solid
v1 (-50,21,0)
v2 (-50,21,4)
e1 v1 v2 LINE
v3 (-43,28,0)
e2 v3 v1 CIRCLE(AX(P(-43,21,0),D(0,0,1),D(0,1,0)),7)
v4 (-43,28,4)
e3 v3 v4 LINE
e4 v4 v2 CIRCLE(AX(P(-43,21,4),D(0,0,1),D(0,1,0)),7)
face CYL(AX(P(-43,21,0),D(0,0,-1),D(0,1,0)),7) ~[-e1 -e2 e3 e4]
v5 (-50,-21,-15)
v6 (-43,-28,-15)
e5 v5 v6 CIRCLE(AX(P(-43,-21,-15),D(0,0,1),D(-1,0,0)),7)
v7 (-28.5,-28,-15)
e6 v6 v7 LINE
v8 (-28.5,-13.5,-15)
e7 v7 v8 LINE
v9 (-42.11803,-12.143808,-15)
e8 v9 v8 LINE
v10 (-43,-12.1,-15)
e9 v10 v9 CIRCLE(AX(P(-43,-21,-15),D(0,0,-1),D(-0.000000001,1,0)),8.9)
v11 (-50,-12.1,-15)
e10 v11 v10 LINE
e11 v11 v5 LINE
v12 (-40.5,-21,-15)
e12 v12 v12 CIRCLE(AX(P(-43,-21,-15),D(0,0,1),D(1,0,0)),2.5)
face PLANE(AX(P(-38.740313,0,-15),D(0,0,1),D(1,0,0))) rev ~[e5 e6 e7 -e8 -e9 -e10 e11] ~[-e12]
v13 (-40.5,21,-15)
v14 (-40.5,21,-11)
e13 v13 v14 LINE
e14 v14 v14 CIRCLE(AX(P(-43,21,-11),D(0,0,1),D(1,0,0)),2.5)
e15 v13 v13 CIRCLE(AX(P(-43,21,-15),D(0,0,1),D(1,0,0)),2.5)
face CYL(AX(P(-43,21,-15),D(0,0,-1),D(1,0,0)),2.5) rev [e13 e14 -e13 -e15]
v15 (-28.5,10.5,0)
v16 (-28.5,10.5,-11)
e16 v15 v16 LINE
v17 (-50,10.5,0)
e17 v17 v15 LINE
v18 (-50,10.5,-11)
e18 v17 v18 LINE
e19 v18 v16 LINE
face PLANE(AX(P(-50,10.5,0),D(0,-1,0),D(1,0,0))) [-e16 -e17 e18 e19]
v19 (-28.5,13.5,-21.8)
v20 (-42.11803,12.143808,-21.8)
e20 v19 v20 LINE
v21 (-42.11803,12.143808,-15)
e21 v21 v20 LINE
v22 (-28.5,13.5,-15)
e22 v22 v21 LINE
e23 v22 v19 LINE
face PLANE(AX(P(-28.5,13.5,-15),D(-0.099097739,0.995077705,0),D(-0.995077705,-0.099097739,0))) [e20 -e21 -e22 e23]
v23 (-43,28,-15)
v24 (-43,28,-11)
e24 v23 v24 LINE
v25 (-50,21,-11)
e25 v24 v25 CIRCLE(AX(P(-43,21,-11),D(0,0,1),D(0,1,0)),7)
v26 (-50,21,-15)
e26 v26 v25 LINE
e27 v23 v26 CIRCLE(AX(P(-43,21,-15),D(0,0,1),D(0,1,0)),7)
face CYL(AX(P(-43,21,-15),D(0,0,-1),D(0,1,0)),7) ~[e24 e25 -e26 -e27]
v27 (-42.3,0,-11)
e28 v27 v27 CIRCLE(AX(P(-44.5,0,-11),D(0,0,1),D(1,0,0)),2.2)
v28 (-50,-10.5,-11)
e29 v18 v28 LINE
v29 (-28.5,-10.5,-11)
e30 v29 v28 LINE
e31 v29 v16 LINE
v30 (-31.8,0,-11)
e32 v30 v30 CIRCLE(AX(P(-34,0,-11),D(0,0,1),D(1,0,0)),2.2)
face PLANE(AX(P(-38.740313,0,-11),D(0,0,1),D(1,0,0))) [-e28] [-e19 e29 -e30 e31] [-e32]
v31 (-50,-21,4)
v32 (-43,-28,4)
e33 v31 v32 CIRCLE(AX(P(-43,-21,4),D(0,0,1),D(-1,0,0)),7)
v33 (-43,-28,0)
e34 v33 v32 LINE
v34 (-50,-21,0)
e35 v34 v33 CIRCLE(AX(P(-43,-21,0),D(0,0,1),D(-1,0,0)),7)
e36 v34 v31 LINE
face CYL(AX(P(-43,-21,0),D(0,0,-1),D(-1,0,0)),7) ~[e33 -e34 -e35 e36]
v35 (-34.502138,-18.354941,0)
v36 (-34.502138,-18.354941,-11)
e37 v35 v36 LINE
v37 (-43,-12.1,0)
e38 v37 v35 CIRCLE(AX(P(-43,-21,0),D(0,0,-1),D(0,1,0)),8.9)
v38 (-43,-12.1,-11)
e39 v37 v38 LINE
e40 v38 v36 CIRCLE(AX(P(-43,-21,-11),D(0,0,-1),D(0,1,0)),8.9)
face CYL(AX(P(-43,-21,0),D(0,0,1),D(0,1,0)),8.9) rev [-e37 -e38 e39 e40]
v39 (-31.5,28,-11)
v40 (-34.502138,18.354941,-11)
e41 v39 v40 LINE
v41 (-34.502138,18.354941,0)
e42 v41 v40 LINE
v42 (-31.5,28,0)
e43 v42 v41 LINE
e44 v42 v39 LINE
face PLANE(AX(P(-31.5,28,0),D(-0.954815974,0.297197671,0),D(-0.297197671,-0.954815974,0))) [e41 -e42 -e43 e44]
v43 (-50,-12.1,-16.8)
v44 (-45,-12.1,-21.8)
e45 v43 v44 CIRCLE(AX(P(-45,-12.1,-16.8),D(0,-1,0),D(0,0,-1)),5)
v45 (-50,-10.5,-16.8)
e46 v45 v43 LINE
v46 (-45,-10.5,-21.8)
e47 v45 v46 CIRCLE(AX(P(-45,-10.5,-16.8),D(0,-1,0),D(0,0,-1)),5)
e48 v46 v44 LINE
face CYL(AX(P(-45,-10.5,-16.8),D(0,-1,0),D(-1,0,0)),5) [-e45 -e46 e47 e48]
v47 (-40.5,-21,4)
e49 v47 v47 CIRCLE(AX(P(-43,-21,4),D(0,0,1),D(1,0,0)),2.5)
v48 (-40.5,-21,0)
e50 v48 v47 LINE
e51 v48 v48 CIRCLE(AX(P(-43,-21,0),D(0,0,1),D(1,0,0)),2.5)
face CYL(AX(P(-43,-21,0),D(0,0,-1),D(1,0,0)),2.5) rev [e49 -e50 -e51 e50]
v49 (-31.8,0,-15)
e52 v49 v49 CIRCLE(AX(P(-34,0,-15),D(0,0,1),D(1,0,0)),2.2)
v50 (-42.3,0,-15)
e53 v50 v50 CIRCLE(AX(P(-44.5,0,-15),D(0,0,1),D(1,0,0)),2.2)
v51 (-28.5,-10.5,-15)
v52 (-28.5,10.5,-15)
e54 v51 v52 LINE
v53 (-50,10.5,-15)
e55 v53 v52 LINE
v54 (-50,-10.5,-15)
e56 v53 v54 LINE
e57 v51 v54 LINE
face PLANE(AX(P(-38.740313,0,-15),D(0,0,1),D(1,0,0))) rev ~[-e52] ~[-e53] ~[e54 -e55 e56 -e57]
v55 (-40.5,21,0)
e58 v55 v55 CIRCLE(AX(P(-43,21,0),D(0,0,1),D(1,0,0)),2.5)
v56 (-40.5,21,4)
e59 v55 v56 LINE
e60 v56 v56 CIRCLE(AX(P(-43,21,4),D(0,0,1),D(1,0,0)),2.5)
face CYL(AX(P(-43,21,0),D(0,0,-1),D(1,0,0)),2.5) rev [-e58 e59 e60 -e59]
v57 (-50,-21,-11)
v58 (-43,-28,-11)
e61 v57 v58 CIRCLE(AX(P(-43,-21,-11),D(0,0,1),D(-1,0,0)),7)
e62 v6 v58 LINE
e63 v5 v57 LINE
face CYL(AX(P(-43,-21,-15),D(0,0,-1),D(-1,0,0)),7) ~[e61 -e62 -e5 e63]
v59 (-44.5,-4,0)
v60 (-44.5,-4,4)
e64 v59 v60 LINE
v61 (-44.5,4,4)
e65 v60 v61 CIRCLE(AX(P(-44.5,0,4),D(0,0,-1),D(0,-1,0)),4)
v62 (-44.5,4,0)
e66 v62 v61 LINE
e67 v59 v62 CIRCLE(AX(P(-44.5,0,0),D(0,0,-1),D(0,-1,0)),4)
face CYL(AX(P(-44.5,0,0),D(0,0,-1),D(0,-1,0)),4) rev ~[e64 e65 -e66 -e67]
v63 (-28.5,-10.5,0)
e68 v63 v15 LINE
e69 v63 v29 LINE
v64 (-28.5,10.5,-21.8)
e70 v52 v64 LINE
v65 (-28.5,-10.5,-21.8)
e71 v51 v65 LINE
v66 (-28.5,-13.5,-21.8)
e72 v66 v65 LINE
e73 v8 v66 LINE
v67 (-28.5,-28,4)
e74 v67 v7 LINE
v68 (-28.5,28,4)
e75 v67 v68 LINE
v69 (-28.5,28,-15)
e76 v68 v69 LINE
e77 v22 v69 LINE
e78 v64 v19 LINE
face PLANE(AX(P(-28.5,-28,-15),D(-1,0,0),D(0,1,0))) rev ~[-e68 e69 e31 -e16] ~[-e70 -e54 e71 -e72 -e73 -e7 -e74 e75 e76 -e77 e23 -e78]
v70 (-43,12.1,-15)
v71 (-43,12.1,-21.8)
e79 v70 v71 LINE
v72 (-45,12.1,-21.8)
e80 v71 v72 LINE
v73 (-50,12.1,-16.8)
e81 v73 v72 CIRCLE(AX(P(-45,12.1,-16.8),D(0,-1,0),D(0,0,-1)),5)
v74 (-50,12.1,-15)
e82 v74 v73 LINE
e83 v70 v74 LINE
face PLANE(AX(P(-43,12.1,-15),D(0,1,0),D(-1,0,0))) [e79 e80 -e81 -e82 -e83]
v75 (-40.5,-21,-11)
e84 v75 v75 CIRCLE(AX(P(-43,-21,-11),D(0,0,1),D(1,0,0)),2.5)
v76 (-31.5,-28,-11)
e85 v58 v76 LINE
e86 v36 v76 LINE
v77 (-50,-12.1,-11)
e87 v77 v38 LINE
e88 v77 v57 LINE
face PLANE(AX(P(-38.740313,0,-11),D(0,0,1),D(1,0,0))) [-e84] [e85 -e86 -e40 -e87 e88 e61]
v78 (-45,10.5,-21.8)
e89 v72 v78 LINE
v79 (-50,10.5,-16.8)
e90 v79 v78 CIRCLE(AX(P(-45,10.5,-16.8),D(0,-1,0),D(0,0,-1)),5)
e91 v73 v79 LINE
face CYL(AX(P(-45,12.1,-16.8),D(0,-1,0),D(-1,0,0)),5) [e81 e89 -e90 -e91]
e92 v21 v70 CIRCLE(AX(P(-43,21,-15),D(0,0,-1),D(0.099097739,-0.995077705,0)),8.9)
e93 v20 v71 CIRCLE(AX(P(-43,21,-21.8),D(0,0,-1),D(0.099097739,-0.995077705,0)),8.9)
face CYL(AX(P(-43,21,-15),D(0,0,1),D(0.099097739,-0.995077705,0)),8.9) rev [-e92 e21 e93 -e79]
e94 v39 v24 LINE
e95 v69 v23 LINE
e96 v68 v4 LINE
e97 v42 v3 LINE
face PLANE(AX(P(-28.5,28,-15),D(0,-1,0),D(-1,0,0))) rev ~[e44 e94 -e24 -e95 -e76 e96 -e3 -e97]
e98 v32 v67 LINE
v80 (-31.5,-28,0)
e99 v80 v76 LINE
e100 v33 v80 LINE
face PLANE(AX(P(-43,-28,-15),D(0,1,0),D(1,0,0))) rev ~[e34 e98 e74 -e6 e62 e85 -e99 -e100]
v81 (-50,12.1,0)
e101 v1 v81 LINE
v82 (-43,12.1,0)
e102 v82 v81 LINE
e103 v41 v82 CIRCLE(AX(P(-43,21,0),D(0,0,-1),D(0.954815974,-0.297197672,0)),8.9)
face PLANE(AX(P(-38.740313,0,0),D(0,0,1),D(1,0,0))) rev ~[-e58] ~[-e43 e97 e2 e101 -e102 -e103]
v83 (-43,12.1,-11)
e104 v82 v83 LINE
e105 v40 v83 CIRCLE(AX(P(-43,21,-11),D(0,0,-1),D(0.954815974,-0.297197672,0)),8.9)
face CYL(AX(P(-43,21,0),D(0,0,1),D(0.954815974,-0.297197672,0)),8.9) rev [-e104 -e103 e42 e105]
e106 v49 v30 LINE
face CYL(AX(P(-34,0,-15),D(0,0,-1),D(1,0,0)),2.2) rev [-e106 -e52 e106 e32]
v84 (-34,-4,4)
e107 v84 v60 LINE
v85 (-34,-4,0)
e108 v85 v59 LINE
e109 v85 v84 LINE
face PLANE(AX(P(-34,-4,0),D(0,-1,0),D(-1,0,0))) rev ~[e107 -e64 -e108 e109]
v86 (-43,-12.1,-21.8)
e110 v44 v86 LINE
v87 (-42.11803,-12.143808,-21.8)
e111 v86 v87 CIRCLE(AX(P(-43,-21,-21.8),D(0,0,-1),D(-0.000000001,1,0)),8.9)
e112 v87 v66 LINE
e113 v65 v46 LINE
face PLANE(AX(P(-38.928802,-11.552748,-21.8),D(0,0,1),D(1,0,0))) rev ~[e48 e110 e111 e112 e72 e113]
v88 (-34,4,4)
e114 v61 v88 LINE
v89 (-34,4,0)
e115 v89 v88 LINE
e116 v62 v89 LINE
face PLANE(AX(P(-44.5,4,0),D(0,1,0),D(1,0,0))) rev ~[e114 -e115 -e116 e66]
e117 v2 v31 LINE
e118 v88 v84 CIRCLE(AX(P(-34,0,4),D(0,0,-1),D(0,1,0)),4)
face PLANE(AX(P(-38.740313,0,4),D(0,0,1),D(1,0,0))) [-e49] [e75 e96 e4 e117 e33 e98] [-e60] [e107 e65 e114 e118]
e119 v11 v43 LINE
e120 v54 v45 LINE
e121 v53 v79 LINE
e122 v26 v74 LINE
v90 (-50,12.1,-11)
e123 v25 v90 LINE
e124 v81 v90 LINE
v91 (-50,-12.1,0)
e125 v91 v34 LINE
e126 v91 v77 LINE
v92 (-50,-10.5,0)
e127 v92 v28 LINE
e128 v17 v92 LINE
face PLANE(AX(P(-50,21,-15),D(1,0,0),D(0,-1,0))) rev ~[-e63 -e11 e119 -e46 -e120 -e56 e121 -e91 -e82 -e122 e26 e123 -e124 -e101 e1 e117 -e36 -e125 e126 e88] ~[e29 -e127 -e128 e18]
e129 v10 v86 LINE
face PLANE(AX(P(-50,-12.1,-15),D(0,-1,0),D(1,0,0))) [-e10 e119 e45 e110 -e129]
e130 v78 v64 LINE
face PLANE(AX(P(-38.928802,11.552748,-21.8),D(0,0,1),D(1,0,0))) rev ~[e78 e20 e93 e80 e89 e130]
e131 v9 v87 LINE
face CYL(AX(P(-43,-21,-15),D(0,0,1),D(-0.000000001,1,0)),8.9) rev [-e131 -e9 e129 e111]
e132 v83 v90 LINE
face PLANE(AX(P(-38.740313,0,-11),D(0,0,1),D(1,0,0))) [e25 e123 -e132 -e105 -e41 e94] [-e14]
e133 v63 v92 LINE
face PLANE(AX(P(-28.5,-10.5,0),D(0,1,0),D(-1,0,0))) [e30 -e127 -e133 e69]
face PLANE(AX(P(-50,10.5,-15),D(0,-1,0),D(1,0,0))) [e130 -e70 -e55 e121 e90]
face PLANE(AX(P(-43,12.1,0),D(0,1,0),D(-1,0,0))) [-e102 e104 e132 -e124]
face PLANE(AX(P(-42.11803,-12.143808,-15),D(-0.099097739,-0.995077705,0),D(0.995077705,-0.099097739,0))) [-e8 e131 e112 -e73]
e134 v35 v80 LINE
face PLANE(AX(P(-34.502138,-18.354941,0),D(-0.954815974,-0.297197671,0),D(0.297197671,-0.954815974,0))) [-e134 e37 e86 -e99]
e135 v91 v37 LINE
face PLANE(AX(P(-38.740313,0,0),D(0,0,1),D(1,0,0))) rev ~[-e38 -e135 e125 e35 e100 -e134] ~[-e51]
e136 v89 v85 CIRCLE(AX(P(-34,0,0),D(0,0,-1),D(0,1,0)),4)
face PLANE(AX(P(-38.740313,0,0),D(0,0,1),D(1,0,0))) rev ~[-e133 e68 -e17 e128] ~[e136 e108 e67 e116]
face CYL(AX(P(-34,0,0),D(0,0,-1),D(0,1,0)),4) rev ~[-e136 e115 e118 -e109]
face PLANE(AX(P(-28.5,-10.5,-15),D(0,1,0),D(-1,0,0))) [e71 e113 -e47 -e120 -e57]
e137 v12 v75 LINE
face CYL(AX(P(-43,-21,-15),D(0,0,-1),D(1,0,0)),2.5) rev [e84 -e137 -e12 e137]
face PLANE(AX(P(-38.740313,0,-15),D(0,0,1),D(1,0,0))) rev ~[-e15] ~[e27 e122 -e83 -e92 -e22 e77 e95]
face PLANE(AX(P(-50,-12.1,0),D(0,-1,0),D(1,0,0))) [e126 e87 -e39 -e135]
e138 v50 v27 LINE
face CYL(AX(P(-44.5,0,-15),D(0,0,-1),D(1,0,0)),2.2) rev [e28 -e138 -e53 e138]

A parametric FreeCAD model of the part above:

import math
import FreeCAD as App
import Part
import Sketcher
from FreeCAD import Vector


def edges_at(feature, points):
    """Names of the edges that pass closest to the given points."""
    edges = feature.Shape.Edges
    near = lambda p: min(range(len(edges)), key=lambda i: edges[i].distToShape(Part.Vertex(*p))[0])
    return sorted({f"Edge{near(p) + 1}" for p in points})

doc = App.newDocument("Part")
body = doc.addObject("PartDesign::Body", "Body")

# Sketch on XY plane
sketch1 = body.newObject("Sketcher::SketchObject", "Sketch")
sketch1.AttachmentSupport = (doc.getObject("XY_Plane"), [""])
sketch1.MapMode = "FlatFace"
sketch1.addGeometry([
    Part.ArcOfCircle(Part.Circle(Vector(-43, 21, 0), Vector(0, 0, 1), 7), math.radians(90), math.radians(180)),  # 0
    Part.LineSegment(Vector(-50, 21, 0), Vector(-50, -21, 0)),  # 1
    Part.ArcOfCircle(Part.Circle(Vector(-43, -21, 0), Vector(0, 0, 1), 7), math.radians(-180), math.radians(-90)),  # 2
    Part.LineSegment(Vector(-43, -28, 0), Vector(-28.5, -28, 0)),  # 3
    Part.LineSegment(Vector(-28.5, -28, 0), Vector(-28.5, 28, 0)),  # 4
    Part.LineSegment(Vector(-28.5, 28, 0), Vector(-43, 28, 0)),  # 5
    Part.Circle(Vector(-43, -21, 0), Vector(0, 0, 1), 2.5),  # 6
    Part.Circle(Vector(-43, 21, 0), Vector(0, 0, 1), 2.5),  # 7
    Part.ArcOfCircle(Part.Circle(Vector(-44.5, 0, 0), Vector(0, 0, 1), 4), math.radians(90), math.radians(270)),  # 8
    Part.LineSegment(Vector(-44.5, 4, 0), Vector(-34, 4, 0)),  # 9
    Part.ArcOfCircle(Part.Circle(Vector(-34, 0, 0), Vector(0, 0, 1), 4), math.radians(-90), math.radians(90)),  # 10
    Part.LineSegment(Vector(-34, -4, 0), Vector(-44.5, -4, 0)),  # 11
], False)
sketch1.addConstraint([
    Sketcher.Constraint("Tangent", 0, 2, 1, 1),
    Sketcher.Constraint("Tangent", 1, 2, 2, 1),
    Sketcher.Constraint("Tangent", 2, 2, 3, 1),
    Sketcher.Constraint("Coincident", 3, 2, 4, 1),
    Sketcher.Constraint("Coincident", 4, 2, 5, 1),
    Sketcher.Constraint("Tangent", 5, 2, 0, 1),
    Sketcher.Constraint("Tangent", 8, 1, 9, 1),
    Sketcher.Constraint("Tangent", 9, 2, 10, 2),
    Sketcher.Constraint("Tangent", 10, 1, 11, 1),
    Sketcher.Constraint("Tangent", 11, 2, 8, 2),
    Sketcher.Constraint("Vertical", 1),
    Sketcher.Constraint("Horizontal", 3),
    Sketcher.Constraint("Vertical", 4),
    Sketcher.Constraint("Horizontal", 5),
    Sketcher.Constraint("Horizontal", 9),
    Sketcher.Constraint("Horizontal", 11),
    Sketcher.Constraint("Coincident", 6, 3, 2, 3),
    Sketcher.Constraint("Coincident", 7, 3, 0, 3),
    Sketcher.Constraint("Equal", 0, 2),
    Sketcher.Constraint("Equal", 6, 7),
    Sketcher.Constraint("PointOnObject", 8, 3, -1),
    Sketcher.Constraint("Diameter", 6, 5.0),
    Sketcher.Constraint("Radius", 0, 7.0),
    Sketcher.Constraint("Radius", 8, 4.0),
    Sketcher.Constraint("DistanceY", 1, 2, 1, 1, 42.0),
    Sketcher.Constraint("DistanceX", 3, 1, 3, 2, 14.5),
    Sketcher.Constraint("DistanceX", 9, 1, 9, 2, 10.5),
    Sketcher.Constraint("DistanceX", 0, 3, -1, 1, 43.0),
    Sketcher.Constraint("DistanceY", -1, 1, 0, 3, 21.0),
    Sketcher.Constraint("DistanceX", 10, 3, -1, 1, 34.0),
])
pad1 = body.newObject("PartDesign::Pad", "Pad")
pad1.Profile = sketch1
pad1.Length = 4

# Sketch on XY plane
sketch2 = body.newObject("Sketcher::SketchObject", "Sketch001")
sketch2.AttachmentSupport = (doc.getObject("XY_Plane"), [""])
sketch2.MapMode = "FlatFace"
sketch2.addGeometry([
    Part.LineSegment(Vector(-43, 12.1, 0), Vector(-50, 12.1, 0)),  # 0
    Part.LineSegment(Vector(-50, 12.1, 0), Vector(-50, 10.5, 0)),  # 1
    Part.LineSegment(Vector(-50, 10.5, 0), Vector(-28.5, 10.5, 0)),  # 2
    Part.LineSegment(Vector(-28.5, 10.5, 0), Vector(-28.5, 28, 0)),  # 3
    Part.LineSegment(Vector(-28.5, 28, 0), Vector(-31.5, 28, 0)),  # 4
    Part.LineSegment(Vector(-31.5, 28, 0), Vector(-34.5, 18.4, 0)),  # 5
    Part.ArcOfCircle(Part.Circle(Vector(-43, 21, 0), Vector(0, 0, 1), 8.9), math.radians(-90), math.radians(-17)),  # 6
    Part.LineSegment(Vector(-28.5, -10.5, 0), Vector(-50, -10.5, 0)),  # 7
    Part.LineSegment(Vector(-50, -10.5, 0), Vector(-50, -12.1, 0)),  # 8
    Part.LineSegment(Vector(-50, -12.1, 0), Vector(-43, -12.1, 0)),  # 9
    Part.ArcOfCircle(Part.Circle(Vector(-43, -21, 0), Vector(0, 0, 1), 8.9), math.radians(17), math.radians(90)),  # 10
    Part.LineSegment(Vector(-34.5, -18.4, 0), Vector(-31.5, -28, 0)),  # 11
    Part.LineSegment(Vector(-31.5, -28, 0), Vector(-28.5, -28, 0)),  # 12
    Part.LineSegment(Vector(-28.5, -28, 0), Vector(-28.5, -10.5, 0)),  # 13
], False)
sketch2.addConstraint([
    Sketcher.Constraint("Coincident", 0, 2, 1, 1),
    Sketcher.Constraint("Coincident", 1, 2, 2, 1),
    Sketcher.Constraint("Coincident", 2, 2, 3, 1),
    Sketcher.Constraint("Coincident", 3, 2, 4, 1),
    Sketcher.Constraint("Coincident", 4, 2, 5, 1),
    Sketcher.Constraint("Tangent", 5, 2, 6, 2),
    Sketcher.Constraint("Tangent", 6, 1, 0, 1),
    Sketcher.Constraint("Coincident", 7, 2, 8, 1),
    Sketcher.Constraint("Coincident", 8, 2, 9, 1),
    Sketcher.Constraint("Tangent", 9, 2, 10, 2),
    Sketcher.Constraint("Tangent", 10, 1, 11, 1),
    Sketcher.Constraint("Coincident", 11, 2, 12, 1),
    Sketcher.Constraint("Coincident", 12, 2, 13, 1),
    Sketcher.Constraint("Coincident", 13, 2, 7, 1),
    Sketcher.Constraint("Horizontal", 0),
    Sketcher.Constraint("Vertical", 1),
    Sketcher.Constraint("Horizontal", 2),
    Sketcher.Constraint("Vertical", 3),
    Sketcher.Constraint("Horizontal", 4),
    Sketcher.Constraint("Horizontal", 7),
    Sketcher.Constraint("Vertical", 8),
    Sketcher.Constraint("Horizontal", 9),
    Sketcher.Constraint("Horizontal", 12),
    Sketcher.Constraint("Vertical", 13),
    Sketcher.Constraint("Equal", 6, 10),
    Sketcher.Constraint("Symmetric", 6, 3, 10, 3, -1),
    Sketcher.Constraint("Symmetric", 1, 2, 7, 2, -1),
    Sketcher.Constraint("Symmetric", 4, 2, 11, 2, -1),
    Sketcher.Constraint("Vertical", 3, 2, 12, 2),
    Sketcher.Constraint("Radius", 6, 8.9),
    Sketcher.Constraint("DistanceX", 0, 2, 0, 1, 7.0),
    Sketcher.Constraint("DistanceX", 4, 2, 4, 1, 3.0),
    Sketcher.Constraint("DistanceX", 2, 1, 2, 2, 21.5),
    Sketcher.Constraint("DistanceY", 1, 2, 1, 1, 1.6),
    Sketcher.Constraint("DistanceY", 3, 1, 3, 2, 17.5),
    Sketcher.Constraint("DistanceX", 6, 3, -1, 1, 43.0),
    Sketcher.Constraint("DistanceY", -1, 1, 6, 3, 21.0),
])
pad2 = body.newObject("PartDesign::Pad", "Pad001")
pad2.Profile = sketch2
pad2.Length = 11
pad2.Reversed = True

# Sketch on XY plane
sketch3 = body.newObject("Sketcher::SketchObject", "Sketch002")
sketch3.AttachmentSupport = (doc.getObject("XY_Plane"), [""])
sketch3.MapMode = "FlatFace"
sketch3.AttachmentOffset = App.Placement(Vector(0, 0, -15), App.Rotation())
sketch3.addGeometry([
    Part.ArcOfCircle(Part.Circle(Vector(-43, 21, 0), Vector(0, 0, 1), 7), math.radians(90), math.radians(180)),  # 0
    Part.LineSegment(Vector(-50, 21, 0), Vector(-50, -21, 0)),  # 1
    Part.ArcOfCircle(Part.Circle(Vector(-43, -21, 0), Vector(0, 0, 1), 7), math.radians(-180), math.radians(-90)),  # 2
    Part.LineSegment(Vector(-43, -28, 0), Vector(-28.5, -28, 0)),  # 3
    Part.LineSegment(Vector(-28.5, -28, 0), Vector(-28.5, 28, 0)),  # 4
    Part.LineSegment(Vector(-28.5, 28, 0), Vector(-43, 28, 0)),  # 5
    Part.Circle(Vector(-43, -21, 0), Vector(0, 0, 1), 2.5),  # 6
    Part.Circle(Vector(-44.5, 0, 0), Vector(0, 0, 1), 2.2),  # 7
    Part.Circle(Vector(-43, 21, 0), Vector(0, 0, 1), 2.5),  # 8
    Part.Circle(Vector(-34, 0, 0), Vector(0, 0, 1), 2.2),  # 9
], False)
sketch3.addConstraint([
    Sketcher.Constraint("Tangent", 0, 2, 1, 1),
    Sketcher.Constraint("Tangent", 1, 2, 2, 1),
    Sketcher.Constraint("Tangent", 2, 2, 3, 1),
    Sketcher.Constraint("Coincident", 3, 2, 4, 1),
    Sketcher.Constraint("Coincident", 4, 2, 5, 1),
    Sketcher.Constraint("Tangent", 5, 2, 0, 1),
    Sketcher.Constraint("Vertical", 1),
    Sketcher.Constraint("Horizontal", 3),
    Sketcher.Constraint("Vertical", 4),
    Sketcher.Constraint("Horizontal", 5),
    Sketcher.Constraint("Coincident", 6, 3, 2, 3),
    Sketcher.Constraint("Coincident", 8, 3, 0, 3),
    Sketcher.Constraint("Equal", 0, 2),
    Sketcher.Constraint("Equal", 6, 8),
    Sketcher.Constraint("Equal", 7, 9),
    Sketcher.Constraint("PointOnObject", 7, 3, -1),
    Sketcher.Constraint("PointOnObject", 9, 3, -1),
    Sketcher.Constraint("Diameter", 6, 5.0),
    Sketcher.Constraint("Radius", 0, 7.0),
    Sketcher.Constraint("Diameter", 7, 4.4),
    Sketcher.Constraint("DistanceY", 1, 2, 1, 1, 42.0),
    Sketcher.Constraint("DistanceX", 3, 1, 3, 2, 14.5),
    Sketcher.Constraint("DistanceX", 0, 3, -1, 1, 43.0),
    Sketcher.Constraint("DistanceY", -1, 1, 0, 3, 21.0),
    Sketcher.Constraint("DistanceX", 9, 3, -1, 1, 34.0),
    Sketcher.Constraint("DistanceX", 7, 3, 4, 2, 16.0),
])
pad3 = body.newObject("PartDesign::Pad", "Pad002")
pad3.Profile = sketch3
pad3.Length = 4

# Sketch on XY plane
sketch4 = body.newObject("Sketcher::SketchObject", "Sketch003")
sketch4.AttachmentSupport = (doc.getObject("XY_Plane"), [""])
sketch4.MapMode = "FlatFace"
sketch4.AttachmentOffset = App.Placement(Vector(0, 0, -15), App.Rotation())
sketch4.addGeometry([
    Part.LineSegment(Vector(-43, 12.1, 0), Vector(-50, 12.1, 0)),  # 0
    Part.LineSegment(Vector(-50, 12.1, 0), Vector(-50, 10.5, 0)),  # 1
    Part.LineSegment(Vector(-50, 10.5, 0), Vector(-28.5, 10.5, 0)),  # 2
    Part.LineSegment(Vector(-28.5, 10.5, 0), Vector(-28.5, 13.5, 0)),  # 3
    Part.LineSegment(Vector(-28.5, 13.5, 0), Vector(-42.1, 12.1, 0)),  # 4
    Part.ArcOfCircle(Part.Circle(Vector(-43, 21, 0), Vector(0, 0, 1), 8.9), math.radians(-90), math.radians(-84.31)),  # 5
    Part.LineSegment(Vector(-28.5, -10.5, 0), Vector(-50, -10.5, 0)),  # 6
    Part.LineSegment(Vector(-50, -10.5, 0), Vector(-50, -12.1, 0)),  # 7
    Part.LineSegment(Vector(-50, -12.1, 0), Vector(-43, -12.1, 0)),  # 8
    Part.ArcOfCircle(Part.Circle(Vector(-43, -21, 0), Vector(0, 0, 1), 8.9), math.radians(84.31), math.radians(90)),  # 9
    Part.LineSegment(Vector(-42.1, -12.1, 0), Vector(-28.5, -13.5, 0)),  # 10
    Part.LineSegment(Vector(-28.5, -13.5, 0), Vector(-28.5, -10.5, 0)),  # 11
], False)
sketch4.addConstraint([
    Sketcher.Constraint("Coincident", 0, 2, 1, 1),
    Sketcher.Constraint("Coincident", 1, 2, 2, 1),
    Sketcher.Constraint("Coincident", 2, 2, 3, 1),
    Sketcher.Constraint("Coincident", 3, 2, 4, 1),
    Sketcher.Constraint("Tangent", 4, 2, 5, 2),
    Sketcher.Constraint("Tangent", 5, 1, 0, 1),
    Sketcher.Constraint("Coincident", 6, 2, 7, 1),
    Sketcher.Constraint("Coincident", 7, 2, 8, 1),
    Sketcher.Constraint("Tangent", 8, 2, 9, 2),
    Sketcher.Constraint("Tangent", 9, 1, 10, 1),
    Sketcher.Constraint("Coincident", 10, 2, 11, 1),
    Sketcher.Constraint("Coincident", 11, 2, 6, 1),
    Sketcher.Constraint("Horizontal", 0),
    Sketcher.Constraint("Vertical", 1),
    Sketcher.Constraint("Horizontal", 2),
    Sketcher.Constraint("Vertical", 3),
    Sketcher.Constraint("Horizontal", 6),
    Sketcher.Constraint("Vertical", 7),
    Sketcher.Constraint("Horizontal", 8),
    Sketcher.Constraint("Vertical", 11),
    Sketcher.Constraint("Equal", 5, 9),
    Sketcher.Constraint("Symmetric", 5, 3, 9, 3, -1),
    Sketcher.Constraint("Symmetric", 1, 2, 6, 2, -1),
    Sketcher.Constraint("Symmetric", 3, 2, 10, 2, -1),
    Sketcher.Constraint("Radius", 5, 8.9),
    Sketcher.Constraint("DistanceX", 0, 2, 0, 1, 7.0),
    Sketcher.Constraint("DistanceY", 3, 1, 3, 2, 3.0),
    Sketcher.Constraint("DistanceX", 2, 1, 2, 2, 21.5),
    Sketcher.Constraint("DistanceY", 1, 2, 1, 1, 1.6),
    Sketcher.Constraint("DistanceX", 5, 3, -1, 1, 43.0),
    Sketcher.Constraint("DistanceY", -1, 1, 5, 3, 21.0),
])
pad4 = body.newObject("PartDesign::Pad", "Pad003")
pad4.Profile = sketch4
pad4.Length = 6.8
pad4.Reversed = True
doc.recompute()

fillet = body.newObject("PartDesign::Fillet", "Fillet")
fillet.Base = (pad4, edges_at(pad4, [(-50, 11.3, -21.8), (-50, -11.3, -21.8)]))
fillet.Radius = 5

doc.recompute()
